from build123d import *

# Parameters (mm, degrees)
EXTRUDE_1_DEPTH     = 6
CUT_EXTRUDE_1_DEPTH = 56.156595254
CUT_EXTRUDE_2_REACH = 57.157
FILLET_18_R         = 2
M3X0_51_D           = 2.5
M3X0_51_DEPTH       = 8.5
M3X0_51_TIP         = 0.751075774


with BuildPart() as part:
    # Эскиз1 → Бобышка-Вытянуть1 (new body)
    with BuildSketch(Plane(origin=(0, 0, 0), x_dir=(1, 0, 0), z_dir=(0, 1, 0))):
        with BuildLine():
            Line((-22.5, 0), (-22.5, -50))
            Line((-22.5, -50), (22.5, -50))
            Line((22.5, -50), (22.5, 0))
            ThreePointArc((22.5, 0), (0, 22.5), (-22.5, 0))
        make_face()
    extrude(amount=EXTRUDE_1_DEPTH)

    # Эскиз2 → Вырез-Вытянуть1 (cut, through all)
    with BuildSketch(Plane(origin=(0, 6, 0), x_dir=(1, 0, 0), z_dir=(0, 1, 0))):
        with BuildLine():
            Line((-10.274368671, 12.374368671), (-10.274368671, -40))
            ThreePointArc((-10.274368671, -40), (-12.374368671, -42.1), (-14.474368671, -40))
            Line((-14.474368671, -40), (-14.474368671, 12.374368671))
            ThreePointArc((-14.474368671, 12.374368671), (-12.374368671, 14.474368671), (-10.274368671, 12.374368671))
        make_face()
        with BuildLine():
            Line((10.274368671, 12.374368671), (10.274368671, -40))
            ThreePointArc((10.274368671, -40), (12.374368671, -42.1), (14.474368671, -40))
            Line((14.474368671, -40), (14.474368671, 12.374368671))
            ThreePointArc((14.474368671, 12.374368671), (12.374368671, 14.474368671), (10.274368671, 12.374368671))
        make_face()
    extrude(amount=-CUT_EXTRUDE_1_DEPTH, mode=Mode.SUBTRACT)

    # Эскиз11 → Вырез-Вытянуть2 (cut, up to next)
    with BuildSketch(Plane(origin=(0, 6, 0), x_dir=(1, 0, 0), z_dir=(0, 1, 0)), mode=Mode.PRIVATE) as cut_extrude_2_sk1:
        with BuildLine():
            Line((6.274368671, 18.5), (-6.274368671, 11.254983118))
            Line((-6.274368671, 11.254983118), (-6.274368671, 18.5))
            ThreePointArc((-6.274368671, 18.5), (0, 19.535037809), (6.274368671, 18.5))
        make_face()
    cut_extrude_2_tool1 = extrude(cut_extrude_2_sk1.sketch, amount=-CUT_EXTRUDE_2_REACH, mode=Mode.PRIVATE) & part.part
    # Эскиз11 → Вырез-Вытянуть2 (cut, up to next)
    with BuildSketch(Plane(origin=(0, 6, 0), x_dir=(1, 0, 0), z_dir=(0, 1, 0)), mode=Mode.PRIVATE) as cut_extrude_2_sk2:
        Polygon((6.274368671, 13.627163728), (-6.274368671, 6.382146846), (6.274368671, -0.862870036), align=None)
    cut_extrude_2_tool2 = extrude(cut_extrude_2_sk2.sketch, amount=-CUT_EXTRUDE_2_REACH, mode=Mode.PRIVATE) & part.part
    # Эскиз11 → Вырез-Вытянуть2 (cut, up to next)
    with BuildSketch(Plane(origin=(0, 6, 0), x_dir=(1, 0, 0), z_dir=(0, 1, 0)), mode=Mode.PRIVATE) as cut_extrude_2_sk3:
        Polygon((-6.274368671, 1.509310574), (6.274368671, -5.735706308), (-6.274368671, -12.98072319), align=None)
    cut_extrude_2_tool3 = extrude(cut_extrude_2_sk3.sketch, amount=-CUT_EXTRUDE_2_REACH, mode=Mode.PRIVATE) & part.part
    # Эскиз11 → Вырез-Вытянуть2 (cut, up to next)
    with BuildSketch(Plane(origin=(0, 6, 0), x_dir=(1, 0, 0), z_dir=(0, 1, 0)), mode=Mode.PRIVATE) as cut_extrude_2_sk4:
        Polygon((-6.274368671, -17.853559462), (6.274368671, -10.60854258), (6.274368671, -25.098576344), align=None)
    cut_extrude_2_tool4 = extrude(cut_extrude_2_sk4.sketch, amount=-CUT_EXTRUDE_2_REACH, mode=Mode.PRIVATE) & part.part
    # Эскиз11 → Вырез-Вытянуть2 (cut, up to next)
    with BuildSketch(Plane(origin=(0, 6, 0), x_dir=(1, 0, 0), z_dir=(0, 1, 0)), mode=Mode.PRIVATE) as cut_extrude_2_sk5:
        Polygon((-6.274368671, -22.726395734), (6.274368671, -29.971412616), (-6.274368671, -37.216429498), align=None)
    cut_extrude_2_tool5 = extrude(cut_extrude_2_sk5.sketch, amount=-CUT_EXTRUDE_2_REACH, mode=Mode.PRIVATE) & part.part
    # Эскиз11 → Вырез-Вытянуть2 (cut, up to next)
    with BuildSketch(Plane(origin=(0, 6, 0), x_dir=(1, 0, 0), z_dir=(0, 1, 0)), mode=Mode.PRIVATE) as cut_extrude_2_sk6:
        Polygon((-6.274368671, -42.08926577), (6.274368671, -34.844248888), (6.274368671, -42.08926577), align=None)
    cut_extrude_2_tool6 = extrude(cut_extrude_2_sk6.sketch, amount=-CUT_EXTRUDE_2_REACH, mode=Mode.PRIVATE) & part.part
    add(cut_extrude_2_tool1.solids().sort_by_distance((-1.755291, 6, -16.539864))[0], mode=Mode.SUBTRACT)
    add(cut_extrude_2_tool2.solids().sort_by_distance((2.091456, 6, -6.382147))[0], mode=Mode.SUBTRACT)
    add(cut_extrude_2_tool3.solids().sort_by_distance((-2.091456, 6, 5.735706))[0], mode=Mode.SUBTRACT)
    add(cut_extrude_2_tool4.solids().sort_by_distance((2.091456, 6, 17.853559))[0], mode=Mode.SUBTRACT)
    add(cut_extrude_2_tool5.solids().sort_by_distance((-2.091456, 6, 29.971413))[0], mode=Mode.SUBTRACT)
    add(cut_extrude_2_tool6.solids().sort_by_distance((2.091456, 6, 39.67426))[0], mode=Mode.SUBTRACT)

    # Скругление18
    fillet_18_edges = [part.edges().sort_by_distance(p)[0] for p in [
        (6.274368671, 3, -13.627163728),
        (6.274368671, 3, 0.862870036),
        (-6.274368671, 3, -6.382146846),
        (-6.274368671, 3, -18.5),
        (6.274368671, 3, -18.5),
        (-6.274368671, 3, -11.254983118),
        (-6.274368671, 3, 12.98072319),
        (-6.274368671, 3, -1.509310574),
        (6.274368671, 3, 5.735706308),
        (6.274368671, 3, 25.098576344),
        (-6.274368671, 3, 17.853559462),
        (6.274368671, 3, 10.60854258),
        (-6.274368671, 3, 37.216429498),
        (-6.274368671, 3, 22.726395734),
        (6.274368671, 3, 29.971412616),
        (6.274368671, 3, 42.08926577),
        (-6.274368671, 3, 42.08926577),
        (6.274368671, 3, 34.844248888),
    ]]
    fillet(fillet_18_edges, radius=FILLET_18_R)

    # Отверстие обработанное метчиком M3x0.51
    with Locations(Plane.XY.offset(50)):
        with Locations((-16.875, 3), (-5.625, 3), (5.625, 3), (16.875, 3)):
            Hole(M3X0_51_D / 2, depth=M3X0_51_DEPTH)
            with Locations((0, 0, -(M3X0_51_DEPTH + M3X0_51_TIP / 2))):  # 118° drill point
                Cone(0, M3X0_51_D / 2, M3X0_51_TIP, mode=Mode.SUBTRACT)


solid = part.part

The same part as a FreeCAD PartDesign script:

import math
import FreeCAD as App
import Part
import Sketcher

V = App.Vector
Q = App.Units.Quantity


def edges_at(feature, points):
    """Names of the edges that pass closest to the given points."""
    edges = feature.Shape.Edges
    near = lambda p: min(range(len(edges)), key=lambda i: edges[i].distToShape(Part.Vertex(*p))[0])
    return sorted({f"Edge{near(p) + 1}" for p in points})


def add_polygon(sketch, points):
    """Adds a closed chain of lines whose ends are joined by coincident constraints."""
    first, n = sketch.GeometryCount, len(points)
    for a, b in zip(points, points[1:] + points[:1]):
        sketch.addGeometry(Part.LineSegment(App.Vector(*a, 0), App.Vector(*b, 0)), False)
    for i in range(n):
        sketch.addConstraint(Sketcher.Constraint("Coincident", first + i, 2, first + (i + 1) % n, 1))

doc = App.newDocument("Part")
body = doc.addObject("PartDesign::Body", "Body")

# Sketch on XZ plane
sketch1 = body.newObject("Sketcher::SketchObject", "Sketch")
sketch1.AttachmentSupport = (doc.getObject("XZ_Plane"), [""])
sketch1.MapMode = "FlatFace"
sketch1.addGeometry([
    Part.LineSegment(V(-22.5, 0, 0), V(-22.5, 50, 0)),
    Part.LineSegment(V(-22.5, 50, 0), V(22.5, 50, 0)),
    Part.LineSegment(V(22.5, 50, 0), V(22.5, 0, 0)),
    Part.ArcOfCircle(Part.Circle(V(0, 0, 0), V(0, 0, 1), 22.5), math.radians(180), math.radians(360)),
], False)
sketch1.addConstraint([
    Sketcher.Constraint("Coincident", 0, 2, 1, 1),
    Sketcher.Constraint("Coincident", 1, 2, 2, 1),
    Sketcher.Constraint("Tangent", 2, 2, 3, 2),
    Sketcher.Constraint("Tangent", 3, 1, 0, 1),
    Sketcher.Constraint("Vertical", 0),
    Sketcher.Constraint("Horizontal", 1),
    Sketcher.Constraint("Vertical", 2),
    Sketcher.Constraint("Coincident", 3, 3, -1, 1),
    Sketcher.Constraint("Radius", 3, Q("22.5 mm")),
    Sketcher.Constraint("DistanceY", 0, 1, 0, 2, Q("50 mm")),
])
pad1 = body.newObject("PartDesign::Pad", "Pad")
pad1.Profile = sketch1
pad1.Length = 6
pad1.Reversed = True

# Sketch on XZ plane
sketch2 = body.newObject("Sketcher::SketchObject", "Sketch001")
sketch2.AttachmentSupport = (doc.getObject("XZ_Plane"), [""])
sketch2.MapMode = "FlatFace"
sketch2.AttachmentOffset = App.Placement(V(0, 0, -6), App.Rotation())
sketch2.addGeometry([
    Part.LineSegment(V(-10.274369, 40, 0), V(-10.274369, -12.374369, 0)),  # 0
    Part.ArcOfCircle(Part.Circle(V(-12.374369, -12.374369, 0), V(0, 0, 1), 2.1), math.radians(180), math.radians(360)),  # 1
    Part.LineSegment(V(-14.474369, -12.374369, 0), V(-14.474369, 40, 0)),  # 2
    Part.ArcOfCircle(Part.Circle(V(-12.374369, 40, 0), V(0, 0, 1), 2.1), math.radians(0), math.radians(180)),  # 3
    Part.LineSegment(V(10.274369, -12.374369, 0), V(10.274369, 40, 0)),  # 4
    Part.ArcOfCircle(Part.Circle(V(12.374369, 40, 0), V(0, 0, 1), 2.1), math.radians(0), math.radians(180)),  # 5
    Part.LineSegment(V(14.474369, 40, 0), V(14.474369, -12.374369, 0)),  # 6
    Part.ArcOfCircle(Part.Circle(V(12.374369, -12.374369, 0), V(0, 0, 1), 2.1), math.radians(180), math.radians(360)),  # 7
], False)
sketch2.addConstraint([
    Sketcher.Constraint("Tangent", 0, 2, 1, 2),
    Sketcher.Constraint("Tangent", 1, 1, 2, 1),
    Sketcher.Constraint("Tangent", 2, 2, 3, 2),
    Sketcher.Constraint("Tangent", 3, 1, 0, 1),
    Sketcher.Constraint("Tangent", 4, 2, 5, 2),
    Sketcher.Constraint("Tangent", 5, 1, 6, 1),
    Sketcher.Constraint("Tangent", 6, 2, 7, 2),
    Sketcher.Constraint("Tangent", 7, 1, 4, 1),
    Sketcher.Constraint("Vertical", 0),
    Sketcher.Constraint("Vertical", 2),
    Sketcher.Constraint("Vertical", 4),
    Sketcher.Constraint("Vertical", 6),
    Sketcher.Constraint("Equal", 3, 5),
    Sketcher.Constraint("Symmetric", 3, 3, 5, 3, -2),
    Sketcher.Constraint("Horizontal", 1, 3, 7, 3),
    Sketcher.Constraint("Radius", 1, Q("2.1 mm")),
    Sketcher.Constraint("DistanceY", -1, 1, 3, 3, Q("40 mm")),
    Sketcher.Constraint("DistanceY", 0, 2, 0, 1, Q("52.374369 mm")),
    Sketcher.Constraint("DistanceX", 1, 3, -1, 1, Q("12.374369 mm")),
])
pocket1 = body.newObject("PartDesign::Pocket", "Pocket")
pocket1.Profile = sketch2
pocket1.Type = "ThroughAll"
pocket1.Reversed = True

# Sketch on XZ plane
sketch3 = body.newObject("Sketcher::SketchObject", "Sketch002")
sketch3.AttachmentSupport = (doc.getObject("XZ_Plane"), [""])
sketch3.MapMode = "FlatFace"
sketch3.AttachmentOffset = App.Placement(V(0, 0, -6), App.Rotation())
sketch3.addGeometry([
    Part.LineSegment(V(-6.274369, -11.254983, 0), V(6.274369, -18.5, 0)),
    Part.ArcOfCircle(Part.Circle(V(0, 0, 0), V(0, 0, 1), 19.535038), math.radians(-108.734627), math.radians(-71.265373)),
    Part.LineSegment(V(-6.274369, -18.5, 0), V(-6.274369, -11.254983, 0)),
], False)
sketch3.addConstraint([
    Sketcher.Constraint("Coincident", 0, 2, 1, 2),
    Sketcher.Constraint("Coincident", 1, 1, 2, 1),
    Sketcher.Constraint("Coincident", 2, 2, 0, 1),
    Sketcher.Constraint("Vertical", 2),
    Sketcher.Constraint("Coincident", 1, 3, -1, 1),
    Sketcher.Constraint("Horizontal", 0, 2, 1, 1),
    Sketcher.Constraint("Angle", 0, Q("-30 deg")),
    Sketcher.Constraint("DistanceY", 0, 2, -1, 1, Q("18.5 mm")),
    Sketcher.Constraint("Radius", 1, Q("19.535038 mm")),
])
pocket2 = body.newObject("PartDesign::Pocket", "Pocket001")
pocket2.Profile = sketch3
pocket2.Type = "UpToFirst"
pocket2.Reversed = True

# Sketch on XZ plane
sketch4 = body.newObject("Sketcher::SketchObject", "Sketch003")
sketch4.AttachmentSupport = (doc.getObject("XZ_Plane"), [""])
sketch4.MapMode = "FlatFace"
sketch4.AttachmentOffset = App.Placement(V(0, 0, -6), App.Rotation())
add_polygon(sketch4, [(6.274369, -13.627164), (-6.274369, -6.382147), (6.274369, 0.86287)])  # lines 0-2
sketch4.addConstraint([
    Sketcher.Constraint("Vertical", 2),
    Sketcher.Constraint("Equal", 0, 1),
    Sketcher.Constraint("Angle", 0, Q("150 deg")),
    Sketcher.Constraint("DistanceY", 2, 2, 2, 1, Q("14.490034 mm")),
    Sketcher.Constraint("DistanceX", 0, 2, -1, 1, Q("6.274369 mm")),
    Sketcher.Constraint("DistanceY", -1, 1, 1, 2, Q("0.86287 mm")),
])
pocket3 = body.newObject("PartDesign::Pocket", "Pocket002")
pocket3.Profile = sketch4
pocket3.Type = "UpToFirst"
pocket3.Reversed = True

# Sketch on XZ plane
sketch5 = body.newObject("Sketcher::SketchObject", "Sketch004")
sketch5.AttachmentSupport = (doc.getObject("XZ_Plane"), [""])
sketch5.MapMode = "FlatFace"
sketch5.AttachmentOffset = App.Placement(V(0, 0, -6), App.Rotation())
add_polygon(sketch5, [(6.274369, 5.735706), (-6.274369, -1.509311), (-6.274369, 12.980723)])  # lines 0-2
sketch5.addConstraint([
    Sketcher.Constraint("Vertical", 1),
    Sketcher.Constraint("Equal", 0, 2),
    Sketcher.Constraint("Angle", 0, Q("-150 deg")),
    Sketcher.Constraint("DistanceY", 1, 1, 1, 2, Q("14.490034 mm")),
    Sketcher.Constraint("DistanceX", 0, 2, -1, 1, Q("6.274369 mm")),
    Sketcher.Constraint("DistanceY", 0, 2, -1, 1, Q("1.509311 mm")),
])
pocket4 = body.newObject("PartDesign::Pocket", "Pocket003")
pocket4.Profile = sketch5
pocket4.Type = "UpToFirst"
pocket4.Reversed = True

# Sketch on XZ plane
sketch6 = body.newObject("Sketcher::SketchObject", "Sketch005")
sketch6.AttachmentSupport = (doc.getObject("XZ_Plane"), [""])
sketch6.MapMode = "FlatFace"
sketch6.AttachmentOffset = App.Placement(V(0, 0, -6), App.Rotation())
add_polygon(sketch6, [(6.274369, 10.608543), (-6.274369, 17.853559), (6.274369, 25.098576)])  # lines 0-2
sketch6.addConstraint([
    Sketcher.Constraint("Vertical", 2),
    Sketcher.Constraint("Equal", 0, 1),
    Sketcher.Constraint("Angle", 0, Q("150 deg")),
    Sketcher.Constraint("DistanceY", 2, 2, 2, 1, Q("14.490034 mm")),
    Sketcher.Constraint("DistanceX", 0, 2, -1, 1, Q("6.274369 mm")),
    Sketcher.Constraint("DistanceY", -1, 1, 0, 2, Q("17.853559 mm")),
])
pocket5 = body.newObject("PartDesign::Pocket", "Pocket004")
pocket5.Profile = sketch6
pocket5.Type = "UpToFirst"
pocket5.Reversed = True

# Sketch on XZ plane
sketch7 = body.newObject("Sketcher::SketchObject", "Sketch006")
sketch7.AttachmentSupport = (doc.getObject("XZ_Plane"), [""])
sketch7.MapMode = "FlatFace"
sketch7.AttachmentOffset = App.Placement(V(0, 0, -6), App.Rotation())
add_polygon(sketch7, [(6.274369, 29.971413), (-6.274369, 22.726396), (-6.274369, 37.216429)])  # lines 0-2
sketch7.addConstraint([
    Sketcher.Constraint("Vertical", 1),
    Sketcher.Constraint("Equal", 0, 2),
    Sketcher.Constraint("Angle", 0, Q("-150 deg")),
    Sketcher.Constraint("DistanceY", 1, 1, 1, 2, Q("14.490034 mm")),
    Sketcher.Constraint("DistanceX", 0, 2, -1, 1, Q("6.274369 mm")),
    Sketcher.Constraint("DistanceY", -1, 1, 1, 2, Q("37.216429 mm")),
])
pocket6 = body.newObject("PartDesign::Pocket", "Pocket005")
pocket6.Profile = sketch7
pocket6.Type = "UpToFirst"
pocket6.Reversed = True

# Sketch on XZ plane
sketch8 = body.newObject("Sketcher::SketchObject", "Sketch007")
sketch8.AttachmentSupport = (doc.getObject("XZ_Plane"), [""])
sketch8.MapMode = "FlatFace"
sketch8.AttachmentOffset = App.Placement(V(0, 0, -6), App.Rotation())
add_polygon(sketch8, [(6.274369, 34.844249), (-6.274369, 42.089266), (6.274369, 42.089266)])  # lines 0-2
sketch8.addConstraint([
    Sketcher.Constraint("Horizontal", 1),
    Sketcher.Constraint("Vertical", 2),
    Sketcher.Constraint("Angle", 0, Q("150 deg")),
    Sketcher.Constraint("DistanceX", 1, 1, 1, 2, Q("12.548737 mm")),
    Sketcher.Constraint("DistanceX", 0, 2, -1, 1, Q("6.274369 mm")),
    Sketcher.Constraint("DistanceY", -1, 1, 2, 2, Q("34.844249 mm")),
])
pocket7 = body.newObject("PartDesign::Pocket", "Pocket006")
pocket7.Profile = sketch8
pocket7.Type = "UpToFirst"
pocket7.Reversed = True
doc.recompute()

fillet = body.newObject("PartDesign::Fillet", "Fillet")
fillet.Base = (pocket7, edges_at(pocket7, [
    (6.274, 3, -13.627),
    (6.274, 3, 0.863),
    (-6.274, 3, -6.382),
    (-6.274, 3, -18.5),
    (6.274, 3, -18.5),
    (-6.274, 3, -11.255),
    (-6.274, 3, 12.981),
    (-6.274, 3, -1.509),
    (6.274, 3, 5.736),
    (6.274, 3, 25.099),
    (-6.274, 3, 17.854),
    (6.274, 3, 10.609),
    (-6.274, 3, 37.216),
    (-6.274, 3, 22.726),
    (6.274, 3, 29.971),
    (6.274, 3, 42.089),
    (-6.274, 3, 42.089),
    (6.274, 3, 34.844),
]))
fillet.Radius = 2

# Sketch on XY plane
sketch9 = body.newObject("Sketcher::SketchObject", "Sketch008")
sketch9.AttachmentSupport = (doc.getObject("XY_Plane"), [""])
sketch9.MapMode = "FlatFace"
sketch9.AttachmentOffset = App.Placement(V(0, 0, 50), App.Rotation())
sketch9.addGeometry([
    Part.Circle(V(-16.875, 3, 0), V(0, 0, 1), 1.25),
    Part.Circle(V(-5.625, 3, 0), V(0, 0, 1), 1.25),
    Part.Circle(V(5.625, 3, 0), V(0, 0, 1), 1.25),
    Part.Circle(V(16.875, 3, 0), V(0, 0, 1), 1.25),
], False)
sketch9.addConstraint([
    Sketcher.Constraint("Equal", 0, 1),
    Sketcher.Constraint("Equal", 1, 2),
    Sketcher.Constraint("Equal", 2, 3),
    Sketcher.Constraint("Symmetric", 1, 3, 2, 3, -2),
    Sketcher.Constraint("Symmetric", 0, 3, 3, 3, -2),
    Sketcher.Constraint("Horizontal", 0, 3, 1, 3),
    Sketcher.Constraint("Diameter", 0, Q("2.5 mm")),
    Sketcher.Constraint("DistanceY", -1, 1, 0, 3, Q("3 mm")),
    Sketcher.Constraint("DistanceX", 0, 3, 2, 3, Q("22.5 mm")),
    Sketcher.Constraint("DistanceX", 0, 3, 1, 3, Q("11.25 mm")),
])
doc.recompute()
hole = body.newObject("PartDesign::Hole", "Hole")
hole.Profile = sketch9
hole.ThreadType = "None"
hole.Diameter = 2.5
hole.DepthType = "Dimension"
hole.Depth = 8.5
hole.DrillPoint = "Angled"
hole.DrillPointAngle = 118

doc.recompute()
